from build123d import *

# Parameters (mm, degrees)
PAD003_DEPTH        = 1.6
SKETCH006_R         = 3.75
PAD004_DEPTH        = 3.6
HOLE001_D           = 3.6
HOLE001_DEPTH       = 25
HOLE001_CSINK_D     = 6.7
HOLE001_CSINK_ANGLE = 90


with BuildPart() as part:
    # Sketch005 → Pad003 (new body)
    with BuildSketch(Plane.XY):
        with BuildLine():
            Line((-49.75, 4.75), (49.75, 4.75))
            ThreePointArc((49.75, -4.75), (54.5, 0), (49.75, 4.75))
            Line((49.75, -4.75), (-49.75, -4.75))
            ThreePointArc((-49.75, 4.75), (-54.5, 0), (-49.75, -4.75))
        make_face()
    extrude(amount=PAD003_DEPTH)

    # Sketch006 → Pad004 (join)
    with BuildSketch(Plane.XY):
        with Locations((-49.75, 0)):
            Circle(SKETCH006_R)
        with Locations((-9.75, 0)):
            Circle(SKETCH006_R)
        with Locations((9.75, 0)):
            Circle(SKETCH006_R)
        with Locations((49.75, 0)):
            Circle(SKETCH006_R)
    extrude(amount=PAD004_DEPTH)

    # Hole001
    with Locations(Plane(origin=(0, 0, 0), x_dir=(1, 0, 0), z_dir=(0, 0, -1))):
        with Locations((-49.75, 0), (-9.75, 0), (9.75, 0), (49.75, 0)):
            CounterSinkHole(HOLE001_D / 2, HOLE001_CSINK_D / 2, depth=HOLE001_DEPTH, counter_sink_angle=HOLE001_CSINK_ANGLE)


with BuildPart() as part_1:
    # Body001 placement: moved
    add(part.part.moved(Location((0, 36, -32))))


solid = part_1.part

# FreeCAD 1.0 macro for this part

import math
import FreeCAD as App
import Part
import Sketcher
from FreeCAD import Vector

doc = App.newDocument("Part")
body = doc.addObject("PartDesign::Body", "Body")

# Sketch on XY plane
sketch1 = body.newObject("Sketcher::SketchObject", "Sketch")
sketch1.AttachmentSupport = (doc.getObject("XY_Plane"), [""])
sketch1.MapMode = "FlatFace"
sketch1.addGeometry([
    Part.LineSegment(Vector(49.75, 4.75, 0), Vector(-49.75, 4.75, 0)),
    Part.ArcOfCircle(Part.Circle(Vector(-49.75, 0, 0), Vector(0, 0, 1), 4.75), math.radians(90), math.radians(270)),
    Part.LineSegment(Vector(-49.75, -4.75, 0), Vector(49.75, -4.75, 0)),
    Part.ArcOfCircle(Part.Circle(Vector(49.75, 0, 0), Vector(0, 0, 1), 4.75), math.radians(-90), math.radians(90)),
], False)
sketch1.addConstraint([
    Sketcher.Constraint("Tangent", 0, 2, 1, 1),
    Sketcher.Constraint("Tangent", 1, 2, 2, 1),
    Sketcher.Constraint("Tangent", 2, 2, 3, 1),
    Sketcher.Constraint("Tangent", 3, 2, 0, 1),
    Sketcher.Constraint("Horizontal", 0),
    Sketcher.Constraint("Horizontal", 2),
    Sketcher.Constraint("Symmetric", 1, 3, 3, 3, -1, 1),
    Sketcher.Constraint("Radius", 1, 4.75),
    Sketcher.Constraint("DistanceX", 0, 2, 0, 1, 99.5),
])
pad1 = body.newObject("PartDesign::Pad", "Pad")
pad1.Profile = sketch1
pad1.Length = 1.6

# Sketch on XY plane
sketch2 = body.newObject("Sketcher::SketchObject", "Sketch001")
sketch2.AttachmentSupport = (doc.getObject("XY_Plane"), [""])
sketch2.MapMode = "FlatFace"
sketch2.addGeometry([
    Part.Circle(Vector(-49.75, 0, 0), Vector(0, 0, 1), 3.75),
    Part.Circle(Vector(-9.75, 0, 0), Vector(0, 0, 1), 3.75),
    Part.Circle(Vector(9.75, 0, 0), Vector(0, 0, 1), 3.75),
    Part.Circle(Vector(49.75, 0, 0), Vector(0, 0, 1), 3.75),
], False)
sketch2.addConstraint([
    Sketcher.Constraint("Equal", 0, 1),
    Sketcher.Constraint("Equal", 1, 2),
    Sketcher.Constraint("Equal", 2, 3),
    Sketcher.Constraint("Symmetric", 1, 3, 2, 3, -1, 1),
    Sketcher.Constraint("Symmetric", 0, 3, 3, 3, -1, 1),
    Sketcher.Constraint("PointOnObject", 0, 3, -1),
    Sketcher.Constraint("PointOnObject", 1, 3, -1),
    Sketcher.Constraint("Diameter", 0, 7.5),
    Sketcher.Constraint("DistanceX", 0, 3, 1, 3, 40.0),
    Sketcher.Constraint("DistanceX", 1, 3, 2, 3, 19.5),
])
pad2 = body.newObject("PartDesign::Pad", "Pad001")
pad2.Profile = sketch2
pad2.Length = 3.6

# Sketch on XY plane
sketch3 = body.newObject("Sketcher::SketchObject", "Sketch002")
sketch3.AttachmentSupport = (doc.getObject("XY_Plane"), [""])
sketch3.MapMode = "FlatFace"
sketch3.addGeometry([
    Part.Circle(Vector(-49.75, 0, 0), Vector(0, 0, 1), 1.8),
    Part.Circle(Vector(-9.75, 0, 0), Vector(0, 0, 1), 1.8),
    Part.Circle(Vector(9.75, 0, 0), Vector(0, 0, 1), 1.8),
    Part.Circle(Vector(49.75, 0, 0), Vector(0, 0, 1), 1.8),
], False)
sketch3.addConstraint([
    Sketcher.Constraint("Equal", 0, 1),
    Sketcher.Constraint("Equal", 1, 2),
    Sketcher.Constraint("Equal", 2, 3),
    Sketcher.Constraint("Symmetric", 1, 3, 2, 3, -1, 1),
    Sketcher.Constraint("Symmetric", 0, 3, 3, 3, -1, 1),
    Sketcher.Constraint("PointOnObject", 0, 3, -1),
    Sketcher.Constraint("PointOnObject", 1, 3, -1),
    Sketcher.Constraint("Diameter", 0, 3.6),
    Sketcher.Constraint("DistanceX", 0, 3, 1, 3, 40.0),
    Sketcher.Constraint("DistanceX", 1, 3, 2, 3, 19.5),
])
doc.recompute()
hole = body.newObject("PartDesign::Hole", "Hole")
hole.Profile = sketch3
hole.ThreadType = "None"
hole.Diameter = 3.6
hole.DepthType = "Dimension"
hole.Depth = 25
hole.DrillPoint = "Flat"
hole.HoleCutType = "Countersink"
hole.HoleCutDiameter = 6.7
hole.HoleCutCountersinkAngle = 90
hole.Reversed = True
body2 = doc.addObject("PartDesign::Body", "Body001")
doc.recompute()

body.Placement = App.Placement(Vector(0, 36, -32), App.Rotation(Vector(0, 0, 1), 0))
boolean = body2.newObject("PartDesign::Boolean", "Boolean")
boolean.Type = "Fuse"
boolean.addObjects([body])

doc.recompute()
